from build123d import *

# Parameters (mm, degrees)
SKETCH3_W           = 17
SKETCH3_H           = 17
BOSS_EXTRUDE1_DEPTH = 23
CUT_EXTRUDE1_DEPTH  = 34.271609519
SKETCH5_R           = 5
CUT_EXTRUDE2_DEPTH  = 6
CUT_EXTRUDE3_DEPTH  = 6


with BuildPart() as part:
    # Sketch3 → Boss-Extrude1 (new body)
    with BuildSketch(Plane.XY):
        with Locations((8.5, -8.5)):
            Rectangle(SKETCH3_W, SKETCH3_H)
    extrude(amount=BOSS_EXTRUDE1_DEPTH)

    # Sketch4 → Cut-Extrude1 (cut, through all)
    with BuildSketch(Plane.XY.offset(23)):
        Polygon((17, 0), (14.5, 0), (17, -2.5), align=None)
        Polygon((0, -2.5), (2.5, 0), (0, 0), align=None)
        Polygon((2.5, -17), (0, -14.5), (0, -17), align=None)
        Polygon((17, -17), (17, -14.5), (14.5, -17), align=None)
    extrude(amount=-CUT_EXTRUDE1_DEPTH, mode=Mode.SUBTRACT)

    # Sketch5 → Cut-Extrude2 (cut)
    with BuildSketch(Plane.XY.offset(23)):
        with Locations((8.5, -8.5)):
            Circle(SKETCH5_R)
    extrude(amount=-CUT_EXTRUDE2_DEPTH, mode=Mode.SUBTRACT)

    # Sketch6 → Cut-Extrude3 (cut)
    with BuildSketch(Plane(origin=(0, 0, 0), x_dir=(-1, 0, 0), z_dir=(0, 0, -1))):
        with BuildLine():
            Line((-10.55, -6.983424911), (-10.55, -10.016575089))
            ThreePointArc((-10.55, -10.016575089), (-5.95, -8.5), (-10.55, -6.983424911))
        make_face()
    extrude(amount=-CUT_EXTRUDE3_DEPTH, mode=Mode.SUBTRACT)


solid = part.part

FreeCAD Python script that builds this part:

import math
import FreeCAD as App
import Part
import Sketcher


def add_polygon(sketch, points):
    """Adds a closed chain of lines whose ends are joined by coincident constraints."""
    first, n = sketch.GeometryCount, len(points)
    for a, b in zip(points, points[1:] + points[:1]):
        sketch.addGeometry(Part.LineSegment(App.Vector(*a, 0), App.Vector(*b, 0)), False)
    for i in range(n):
        sketch.addConstraint(Sketcher.Constraint("Coincident", first + i, 2, first + (i + 1) % n, 1))

doc = App.newDocument("Part")
body = doc.addObject("PartDesign::Body", "Body")

# Sketch on XY plane
sketch1 = body.newObject("Sketcher::SketchObject", "Sketch")
sketch1.AttachmentSupport = (doc.getObject("XY_Plane"), [""])
sketch1.MapMode = "FlatFace"
add_polygon(sketch1, [(0, 0), (0, -17), (17, -17), (17, 0)])  # lines 0-3
sketch1.addConstraint([
    Sketcher.Constraint("Vertical", 0),
    Sketcher.Constraint("Horizontal", 1),
    Sketcher.Constraint("Vertical", 2),
    Sketcher.Constraint("Horizontal", 3),
    Sketcher.Constraint("Coincident", 3, 2, -1, 1),
    Sketcher.Constraint("Equal", 3, 0),
    Sketcher.Constraint("DistanceX", 1, 1, 1, 2, 17.0),
])
pad1 = body.newObject("PartDesign::Pad", "Pad")
pad1.Profile = sketch1
pad1.Length = 23

# Sketch on XY plane
sketch2 = body.newObject("Sketcher::SketchObject", "Sketch001")
sketch2.AttachmentSupport = (doc.getObject("XY_Plane"), [""])
sketch2.MapMode = "FlatFace"
sketch2.AttachmentOffset = App.Placement(App.Vector(0, 0, 23), App.Rotation())
add_polygon(sketch2, [(17, 0), (14.5, 0), (17, -2.5)])  # lines 0-2
add_polygon(sketch2, [(0, -2.5), (2.5, 0), (0, 0)])  # lines 3-5
add_polygon(sketch2, [(2.5, -17), (0, -14.5), (0, -17)])  # lines 6-8
add_polygon(sketch2, [(17, -17), (17, -14.5), (14.5, -17)])  # lines 9-11
sketch2.addConstraint([
    Sketcher.Constraint("Horizontal", 0),
    Sketcher.Constraint("Vertical", 2),
    Sketcher.Constraint("Horizontal", 4),
    Sketcher.Constraint("Vertical", 5),
    Sketcher.Constraint("Vertical", 7),
    Sketcher.Constraint("Horizontal", 8),
    Sketcher.Constraint("Vertical", 9),
    Sketcher.Constraint("Horizontal", 11),
    Sketcher.Constraint("Coincident", 4, 2, -1, 1),
    Sketcher.Constraint("PointOnObject", 0, 2, -1),
    Sketcher.Constraint("PointOnObject", 6, 2, -2),
    Sketcher.Constraint("Perpendicular", 1, 3),
    Sketcher.Constraint("Perpendicular", 3, 6),
    Sketcher.Constraint("Perpendicular", 6, 10),
    Sketcher.Constraint("Horizontal", 1, 2, 5, 2),
    Sketcher.Constraint("Horizontal", 6, 2, 9, 2),
    Sketcher.Constraint("Horizontal", 8, 2, 10, 2),
    Sketcher.Constraint("Vertical", 3, 2, 8, 2),
    Sketcher.Constraint("Vertical", 2, 2, 9, 2),
    Sketcher.Constraint("Vertical", 0, 2, 10, 2),
    Sketcher.Constraint("DistanceX", 0, 2, 0, 1, 2.5),
    Sketcher.Constraint("DistanceX", -1, 1, 1, 2, 17.0),
    Sketcher.Constraint("DistanceY", 7, 2, -1, 1, 17.0),
])
pocket1 = body.newObject("PartDesign::Pocket", "Pocket")
pocket1.Profile = sketch2
pocket1.Type = "ThroughAll"

# Sketch on XY plane
sketch3 = body.newObject("Sketcher::SketchObject", "Sketch002")
sketch3.AttachmentSupport = (doc.getObject("XY_Plane"), [""])
sketch3.MapMode = "FlatFace"
sketch3.AttachmentOffset = App.Placement(App.Vector(0, 0, 23), App.Rotation())
sketch3.addGeometry(Part.Circle(App.Vector(8.5, -8.5, 0), App.Vector(0, 0, 1), 5), False)
sketch3.addConstraint([
    Sketcher.Constraint("Diameter", 0, 10.0),
    Sketcher.Constraint("DistanceX", -1, 1, 0, 3, 8.5),
    Sketcher.Constraint("DistanceY", 0, 3, -1, 1, 8.5),
])
pocket2 = body.newObject("PartDesign::Pocket", "Pocket001")
pocket2.Profile = sketch3
pocket2.Length = 6

# Sketch on XY plane
sketch4 = body.newObject("Sketcher::SketchObject", "Sketch003")
sketch4.AttachmentSupport = (doc.getObject("XY_Plane"), [""])
sketch4.MapMode = "FlatFace"
sketch4.addGeometry([
    Part.LineSegment(App.Vector(10.55, -6.983425, 0), App.Vector(10.55, -10.016575, 0)),
    Part.ArcOfCircle(Part.Circle(App.Vector(8.5, -8.5, 0), App.Vector(0, 0, 1), 2.55), math.radians(36.493767), math.radians(323.506233)),
], False)
sketch4.addConstraint([
    Sketcher.Constraint("Coincident", 0, 1, 1, 1),
    Sketcher.Constraint("Coincident", 1, 2, 0, 2),
    Sketcher.Constraint("Vertical", 0),
    Sketcher.Constraint("Radius", 1, 2.55),
    Sketcher.Constraint("DistanceX", -1, 1, 1, 3, 8.5),
    Sketcher.Constraint("DistanceY", 1, 3, -1, 1, 8.5),
    Sketcher.Constraint("DistanceX", -1, 1, 0, 1, 10.55),
])
pocket3 = body.newObject("PartDesign::Pocket", "Pocket002")
pocket3.Profile = sketch4
pocket3.Length = 6
pocket3.Reversed = True

doc.recompute()
